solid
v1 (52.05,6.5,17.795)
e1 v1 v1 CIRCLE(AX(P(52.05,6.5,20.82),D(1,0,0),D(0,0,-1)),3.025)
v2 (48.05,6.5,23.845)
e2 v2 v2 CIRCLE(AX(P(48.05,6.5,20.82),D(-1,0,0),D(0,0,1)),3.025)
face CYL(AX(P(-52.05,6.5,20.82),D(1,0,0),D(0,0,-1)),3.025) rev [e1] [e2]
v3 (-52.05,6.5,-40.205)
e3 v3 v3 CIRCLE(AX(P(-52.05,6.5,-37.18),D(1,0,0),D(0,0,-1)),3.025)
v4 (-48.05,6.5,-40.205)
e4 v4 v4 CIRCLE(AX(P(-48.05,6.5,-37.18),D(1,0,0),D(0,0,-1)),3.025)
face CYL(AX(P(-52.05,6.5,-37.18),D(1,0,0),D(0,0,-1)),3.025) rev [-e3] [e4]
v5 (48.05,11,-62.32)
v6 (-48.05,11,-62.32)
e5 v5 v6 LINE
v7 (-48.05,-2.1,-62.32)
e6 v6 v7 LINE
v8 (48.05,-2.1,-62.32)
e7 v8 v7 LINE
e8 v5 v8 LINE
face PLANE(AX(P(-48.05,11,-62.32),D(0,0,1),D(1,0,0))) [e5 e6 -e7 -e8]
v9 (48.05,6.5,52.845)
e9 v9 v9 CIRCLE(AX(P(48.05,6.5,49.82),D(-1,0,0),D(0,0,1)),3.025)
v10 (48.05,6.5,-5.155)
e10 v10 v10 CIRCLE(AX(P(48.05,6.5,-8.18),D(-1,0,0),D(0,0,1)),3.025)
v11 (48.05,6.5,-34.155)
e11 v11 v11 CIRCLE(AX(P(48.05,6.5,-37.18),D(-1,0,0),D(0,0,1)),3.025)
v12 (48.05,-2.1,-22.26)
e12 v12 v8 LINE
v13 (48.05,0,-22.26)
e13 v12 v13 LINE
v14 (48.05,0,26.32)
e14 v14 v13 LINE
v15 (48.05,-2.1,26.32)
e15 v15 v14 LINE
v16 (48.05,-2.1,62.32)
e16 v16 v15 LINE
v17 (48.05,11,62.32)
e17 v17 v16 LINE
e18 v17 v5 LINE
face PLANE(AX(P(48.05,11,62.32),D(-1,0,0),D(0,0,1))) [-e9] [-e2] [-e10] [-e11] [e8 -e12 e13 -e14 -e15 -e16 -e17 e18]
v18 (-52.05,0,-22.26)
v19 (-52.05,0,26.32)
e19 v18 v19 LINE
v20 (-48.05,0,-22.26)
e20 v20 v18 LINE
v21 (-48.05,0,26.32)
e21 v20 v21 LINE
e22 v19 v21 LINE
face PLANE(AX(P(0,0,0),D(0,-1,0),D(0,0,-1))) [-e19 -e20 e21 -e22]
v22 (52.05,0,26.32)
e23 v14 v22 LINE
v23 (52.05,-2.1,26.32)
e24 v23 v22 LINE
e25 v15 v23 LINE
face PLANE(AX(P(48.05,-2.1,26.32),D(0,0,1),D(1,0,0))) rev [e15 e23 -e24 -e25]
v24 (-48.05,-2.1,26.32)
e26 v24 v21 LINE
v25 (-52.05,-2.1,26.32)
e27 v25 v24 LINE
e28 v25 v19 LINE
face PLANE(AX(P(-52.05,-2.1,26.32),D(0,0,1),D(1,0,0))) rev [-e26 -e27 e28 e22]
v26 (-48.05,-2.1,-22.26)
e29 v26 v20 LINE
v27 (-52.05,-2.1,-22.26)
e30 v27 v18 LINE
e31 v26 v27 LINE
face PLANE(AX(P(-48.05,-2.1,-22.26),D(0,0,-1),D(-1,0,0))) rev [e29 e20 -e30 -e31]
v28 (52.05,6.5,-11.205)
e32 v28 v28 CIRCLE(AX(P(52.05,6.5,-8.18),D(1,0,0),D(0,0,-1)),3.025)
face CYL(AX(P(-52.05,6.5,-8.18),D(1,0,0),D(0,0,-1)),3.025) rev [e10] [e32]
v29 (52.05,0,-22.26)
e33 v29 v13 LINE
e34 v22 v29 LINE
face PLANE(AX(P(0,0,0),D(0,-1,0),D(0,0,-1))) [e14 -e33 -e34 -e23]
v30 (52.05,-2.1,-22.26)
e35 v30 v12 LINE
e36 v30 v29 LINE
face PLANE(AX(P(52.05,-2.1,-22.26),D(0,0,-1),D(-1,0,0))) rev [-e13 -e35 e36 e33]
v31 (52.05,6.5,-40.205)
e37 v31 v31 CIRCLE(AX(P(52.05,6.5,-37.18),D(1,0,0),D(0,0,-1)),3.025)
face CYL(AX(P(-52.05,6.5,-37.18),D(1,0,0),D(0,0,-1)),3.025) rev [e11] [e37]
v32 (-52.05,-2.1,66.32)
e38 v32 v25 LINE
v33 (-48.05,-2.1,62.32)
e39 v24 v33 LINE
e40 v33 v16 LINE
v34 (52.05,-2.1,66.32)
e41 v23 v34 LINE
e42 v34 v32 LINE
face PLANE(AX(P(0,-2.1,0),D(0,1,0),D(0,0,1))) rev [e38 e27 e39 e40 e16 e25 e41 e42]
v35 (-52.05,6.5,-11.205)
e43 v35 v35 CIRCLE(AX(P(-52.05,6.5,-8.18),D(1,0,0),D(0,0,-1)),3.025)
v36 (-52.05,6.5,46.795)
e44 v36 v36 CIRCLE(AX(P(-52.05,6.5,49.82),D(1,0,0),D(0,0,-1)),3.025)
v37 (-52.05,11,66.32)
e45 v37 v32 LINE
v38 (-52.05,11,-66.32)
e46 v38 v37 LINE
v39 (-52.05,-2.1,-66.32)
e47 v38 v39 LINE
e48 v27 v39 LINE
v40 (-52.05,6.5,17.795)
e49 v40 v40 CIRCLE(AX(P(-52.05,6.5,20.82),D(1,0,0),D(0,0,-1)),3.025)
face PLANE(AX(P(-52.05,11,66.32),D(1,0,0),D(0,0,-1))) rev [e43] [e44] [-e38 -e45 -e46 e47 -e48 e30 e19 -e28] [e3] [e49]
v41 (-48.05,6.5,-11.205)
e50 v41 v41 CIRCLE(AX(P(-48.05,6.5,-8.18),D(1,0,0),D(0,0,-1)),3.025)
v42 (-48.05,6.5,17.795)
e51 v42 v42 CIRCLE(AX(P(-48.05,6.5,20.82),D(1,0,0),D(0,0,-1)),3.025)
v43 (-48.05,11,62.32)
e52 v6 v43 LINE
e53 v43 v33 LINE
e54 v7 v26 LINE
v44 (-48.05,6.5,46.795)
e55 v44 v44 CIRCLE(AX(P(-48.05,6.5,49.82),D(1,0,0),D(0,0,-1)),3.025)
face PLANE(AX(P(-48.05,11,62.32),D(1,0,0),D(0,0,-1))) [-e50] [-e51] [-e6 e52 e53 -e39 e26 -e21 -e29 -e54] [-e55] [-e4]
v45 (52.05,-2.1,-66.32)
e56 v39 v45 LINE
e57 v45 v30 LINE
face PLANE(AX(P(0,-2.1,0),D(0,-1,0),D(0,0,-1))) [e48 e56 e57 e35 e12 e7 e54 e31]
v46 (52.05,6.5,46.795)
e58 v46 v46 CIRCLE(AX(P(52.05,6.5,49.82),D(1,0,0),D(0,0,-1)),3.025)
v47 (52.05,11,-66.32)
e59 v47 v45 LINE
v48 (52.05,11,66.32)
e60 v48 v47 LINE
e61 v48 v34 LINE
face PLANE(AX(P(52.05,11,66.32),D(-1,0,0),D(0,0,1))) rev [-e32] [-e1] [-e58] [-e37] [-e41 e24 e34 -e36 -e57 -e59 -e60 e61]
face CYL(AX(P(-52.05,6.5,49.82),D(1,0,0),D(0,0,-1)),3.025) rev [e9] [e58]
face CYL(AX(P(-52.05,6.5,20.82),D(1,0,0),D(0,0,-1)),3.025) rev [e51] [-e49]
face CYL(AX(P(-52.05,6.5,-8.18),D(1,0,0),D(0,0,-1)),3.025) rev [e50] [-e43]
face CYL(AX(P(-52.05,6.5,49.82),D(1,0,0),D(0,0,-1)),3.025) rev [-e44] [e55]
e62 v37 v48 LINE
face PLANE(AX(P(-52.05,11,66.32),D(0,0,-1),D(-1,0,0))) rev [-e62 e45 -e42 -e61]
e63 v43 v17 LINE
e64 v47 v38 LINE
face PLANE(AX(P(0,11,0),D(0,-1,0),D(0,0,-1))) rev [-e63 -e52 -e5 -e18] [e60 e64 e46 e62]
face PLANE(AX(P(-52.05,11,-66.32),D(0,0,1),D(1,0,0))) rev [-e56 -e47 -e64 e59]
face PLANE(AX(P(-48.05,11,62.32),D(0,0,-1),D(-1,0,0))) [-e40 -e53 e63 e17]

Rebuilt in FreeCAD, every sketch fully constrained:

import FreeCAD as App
import Part
import Sketcher
from FreeCAD import Vector
Q = App.Units.Quantity


def add_polygon(sketch, points):
    """Adds a closed chain of lines whose ends are joined by coincident constraints."""
    first, n = sketch.GeometryCount, len(points)
    for a, b in zip(points, points[1:] + points[:1]):
        sketch.addGeometry(Part.LineSegment(App.Vector(*a, 0), App.Vector(*b, 0)), False)
    for i in range(n):
        sketch.addConstraint(Sketcher.Constraint("Coincident", first + i, 2, first + (i + 1) % n, 1))

doc = App.newDocument("Part")
params = doc.addObject("Spreadsheet::Sheet", "Params")
for row, (alias, value) in enumerate([
    ("sketch1_width", "104.1 mm"),
    ("sketch1_width2", "96.1 mm"),
    ("sketch1_height", "132.64 mm"),
    ("pad1_length", "11 mm"),
    ("sketch2_diameter", "6.05 mm"),
    ("linearpattern_pitch", "29 mm"),
    ("sketch3_width", "4 mm"),
    ("sketch3_height", "36 mm"),
    ("sketch3_height2", "40 mm"),
    ("sketch3_width2", "104.1 mm"),
    ("sketch3_height3", "44.06 mm"),
    ("pad2_length", "2.1 mm"),
], start=1):
    params.set(f"A{row}", alias)
    params.set(f"B{row}", "=" + value)
    params.setAlias(f"B{row}", alias)

body = doc.addObject("PartDesign::Body", "Body")

sketch1 = body.newObject("Sketcher::SketchObject", "Sketch")
sketch1.AttachmentSupport = (doc.getObject("XZ_Plane"), [""])
sketch1.MapMode = "FlatFace"
add_polygon(sketch1, [(-52.05, -66.32), (-52.05, 66.32), (52.05, 66.32), (52.05, -66.32)])
add_polygon(sketch1, [(48.05, 62.32), (-48.05, 62.32), (-48.05, -62.32), (48.05, -62.32)])
sketch1.addConstraint([
    Sketcher.Constraint("Vertical", 0),
    Sketcher.Constraint("Horizontal", 1),
    Sketcher.Constraint("Vertical", 2),
    Sketcher.Constraint("Horizontal", 3),
    Sketcher.Constraint("Horizontal", 4),
    Sketcher.Constraint("Vertical", 5),
    Sketcher.Constraint("Horizontal", 6),
    Sketcher.Constraint("Vertical", 7),
    Sketcher.Constraint("Symmetric", 0, 2, 2, 2, -1, 1),
    Sketcher.Constraint("Symmetric", 4, 2, 6, 2, -1, 1),
    Sketcher.Constraint("DistanceX", 1, 1, 1, 2, Q("104.1 mm")),
    Sketcher.Constraint("DistanceX", 4, 2, 4, 1, Q("96.1 mm")),
    Sketcher.Constraint("DistanceY", 4, 2, 0, 2, Q("4 mm")),
    Sketcher.Constraint("DistanceY", 0, 1, 0, 2, Q("132.64 mm")),
])
sketch1.setExpression("Constraints[18]", "Params.sketch1_width")
sketch1.setExpression("Constraints[19]", "Params.sketch1_width2")
sketch1.setExpression("Constraints[21]", "Params.sketch1_height")
pad1 = body.newObject("PartDesign::Pad", "Pad")
pad1.Profile = sketch1
pad1.setExpression("Length", "Params.pad1_length")
pad1.Reversed = True

sketch2 = body.newObject("Sketcher::SketchObject", "Sketch001")
sketch2.AttachmentSupport = (doc.getObject("YZ_Plane"), [""])
sketch2.MapMode = "FlatFace"
sketch2.AttachmentOffset = App.Placement(Vector(0, 0, 52.05), App.Rotation())
sketch2.addGeometry(Part.Circle(Vector(6.5, 49.82, 0), Vector(0, 0, 1), 3.025), False)
sketch2.addConstraint([
    Sketcher.Constraint("Diameter", 0, Q("6.05 mm")),
    Sketcher.Constraint("DistanceX", -1, 1, 0, 3, Q("6.5 mm")),
    Sketcher.Constraint("DistanceY", -1, 1, 0, 3, Q("49.82 mm")),
])
sketch2.setExpression("Constraints[0]", "Params.sketch2_diameter")
pocket1 = body.newObject("PartDesign::Pocket", "Pocket")
pocket1.Profile = sketch2
pocket1.Type = "ThroughAll"
doc.recompute()

linearpattern = body.newObject("PartDesign::LinearPattern", "LinearPattern")
linearpattern.Originals = [pocket1]
linearpattern.Direction = (doc.getObject("Z_Axis"), [""])
linearpattern.Mode = "offset"
linearpattern.setExpression("Offset", "Params.linearpattern_pitch")
linearpattern.Occurrences = 4
linearpattern.Reversed = True
body.Tip = linearpattern

sketch3 = body.newObject("Sketcher::SketchObject", "Sketch002")
sketch3.AttachmentSupport = (doc.getObject("XZ_Plane"), [""])
sketch3.MapMode = "FlatFace"
add_polygon(sketch3, [(48.05, 62.32), (48.05, 26.32), (52.05, 26.32), (52.05, 66.32), (-52.05, 66.32), (-52.05, 26.32), (-48.05, 26.32), (-48.05, 62.32)])
add_polygon(sketch3, [(-48.05, -22.26), (-52.05, -22.26), (-52.05, -66.32), (52.05, -66.32), (52.05, -22.26), (48.05, -22.26), (48.05, -62.32), (-48.05, -62.32)])
sketch3.addConstraint([
    Sketcher.Constraint("Vertical", 0),
    Sketcher.Constraint("Horizontal", 1),
    Sketcher.Constraint("Vertical", 2),
    Sketcher.Constraint("Horizontal", 3),
    Sketcher.Constraint("Vertical", 4),
    Sketcher.Constraint("Horizontal", 5),
    Sketcher.Constraint("Vertical", 6),
    Sketcher.Constraint("Horizontal", 7),
    Sketcher.Constraint("Horizontal", 8),
    Sketcher.Constraint("Vertical", 9),
    Sketcher.Constraint("Horizontal", 10),
    Sketcher.Constraint("Vertical", 11),
    Sketcher.Constraint("Horizontal", 12),
    Sketcher.Constraint("Vertical", 13),
    Sketcher.Constraint("Horizontal", 14),
    Sketcher.Constraint("Vertical", 15),
    Sketcher.Constraint("Symmetric", 2, 2, 9, 2, -1, 1),
    Sketcher.Constraint("Symmetric", 6, 2, 13, 2, -1, 1),
    Sketcher.Constraint("Symmetric", 1, 2, 4, 2, -2),
    Sketcher.Constraint("Symmetric", 8, 2, 11, 2, -2),
    Sketcher.Constraint("Vertical", 7, 2, 12, 2),
    Sketcher.Constraint("Vertical", 6, 2, 14, 2),
    Sketcher.Constraint("DistanceX", 1, 1, 1, 2, Q("4 mm")),
    Sketcher.Constraint("DistanceY", 0, 2, 0, 1, Q("36 mm")),
    Sketcher.Constraint("DistanceY", 2, 1, 2, 2, Q("40 mm")),
    Sketcher.Constraint("DistanceX", 3, 2, 3, 1, Q("104.1 mm")),
    Sketcher.Constraint("DistanceY", 9, 2, 9, 1, Q("44.06 mm")),
    Sketcher.Constraint("DistanceY", -1, 1, 0, 2, Q("26.32 mm")),
])
sketch3.setExpression("Constraints[38]", "Params.sketch3_width")
sketch3.setExpression("Constraints[39]", "Params.sketch3_height")
sketch3.setExpression("Constraints[40]", "Params.sketch3_height2")
sketch3.setExpression("Constraints[41]", "Params.sketch3_width2")
sketch3.setExpression("Constraints[42]", "Params.sketch3_height3")
pad2 = body.newObject("PartDesign::Pad", "Pad001")
pad2.Profile = sketch3
pad2.setExpression("Length", "Params.pad2_length")

doc.recompute()
